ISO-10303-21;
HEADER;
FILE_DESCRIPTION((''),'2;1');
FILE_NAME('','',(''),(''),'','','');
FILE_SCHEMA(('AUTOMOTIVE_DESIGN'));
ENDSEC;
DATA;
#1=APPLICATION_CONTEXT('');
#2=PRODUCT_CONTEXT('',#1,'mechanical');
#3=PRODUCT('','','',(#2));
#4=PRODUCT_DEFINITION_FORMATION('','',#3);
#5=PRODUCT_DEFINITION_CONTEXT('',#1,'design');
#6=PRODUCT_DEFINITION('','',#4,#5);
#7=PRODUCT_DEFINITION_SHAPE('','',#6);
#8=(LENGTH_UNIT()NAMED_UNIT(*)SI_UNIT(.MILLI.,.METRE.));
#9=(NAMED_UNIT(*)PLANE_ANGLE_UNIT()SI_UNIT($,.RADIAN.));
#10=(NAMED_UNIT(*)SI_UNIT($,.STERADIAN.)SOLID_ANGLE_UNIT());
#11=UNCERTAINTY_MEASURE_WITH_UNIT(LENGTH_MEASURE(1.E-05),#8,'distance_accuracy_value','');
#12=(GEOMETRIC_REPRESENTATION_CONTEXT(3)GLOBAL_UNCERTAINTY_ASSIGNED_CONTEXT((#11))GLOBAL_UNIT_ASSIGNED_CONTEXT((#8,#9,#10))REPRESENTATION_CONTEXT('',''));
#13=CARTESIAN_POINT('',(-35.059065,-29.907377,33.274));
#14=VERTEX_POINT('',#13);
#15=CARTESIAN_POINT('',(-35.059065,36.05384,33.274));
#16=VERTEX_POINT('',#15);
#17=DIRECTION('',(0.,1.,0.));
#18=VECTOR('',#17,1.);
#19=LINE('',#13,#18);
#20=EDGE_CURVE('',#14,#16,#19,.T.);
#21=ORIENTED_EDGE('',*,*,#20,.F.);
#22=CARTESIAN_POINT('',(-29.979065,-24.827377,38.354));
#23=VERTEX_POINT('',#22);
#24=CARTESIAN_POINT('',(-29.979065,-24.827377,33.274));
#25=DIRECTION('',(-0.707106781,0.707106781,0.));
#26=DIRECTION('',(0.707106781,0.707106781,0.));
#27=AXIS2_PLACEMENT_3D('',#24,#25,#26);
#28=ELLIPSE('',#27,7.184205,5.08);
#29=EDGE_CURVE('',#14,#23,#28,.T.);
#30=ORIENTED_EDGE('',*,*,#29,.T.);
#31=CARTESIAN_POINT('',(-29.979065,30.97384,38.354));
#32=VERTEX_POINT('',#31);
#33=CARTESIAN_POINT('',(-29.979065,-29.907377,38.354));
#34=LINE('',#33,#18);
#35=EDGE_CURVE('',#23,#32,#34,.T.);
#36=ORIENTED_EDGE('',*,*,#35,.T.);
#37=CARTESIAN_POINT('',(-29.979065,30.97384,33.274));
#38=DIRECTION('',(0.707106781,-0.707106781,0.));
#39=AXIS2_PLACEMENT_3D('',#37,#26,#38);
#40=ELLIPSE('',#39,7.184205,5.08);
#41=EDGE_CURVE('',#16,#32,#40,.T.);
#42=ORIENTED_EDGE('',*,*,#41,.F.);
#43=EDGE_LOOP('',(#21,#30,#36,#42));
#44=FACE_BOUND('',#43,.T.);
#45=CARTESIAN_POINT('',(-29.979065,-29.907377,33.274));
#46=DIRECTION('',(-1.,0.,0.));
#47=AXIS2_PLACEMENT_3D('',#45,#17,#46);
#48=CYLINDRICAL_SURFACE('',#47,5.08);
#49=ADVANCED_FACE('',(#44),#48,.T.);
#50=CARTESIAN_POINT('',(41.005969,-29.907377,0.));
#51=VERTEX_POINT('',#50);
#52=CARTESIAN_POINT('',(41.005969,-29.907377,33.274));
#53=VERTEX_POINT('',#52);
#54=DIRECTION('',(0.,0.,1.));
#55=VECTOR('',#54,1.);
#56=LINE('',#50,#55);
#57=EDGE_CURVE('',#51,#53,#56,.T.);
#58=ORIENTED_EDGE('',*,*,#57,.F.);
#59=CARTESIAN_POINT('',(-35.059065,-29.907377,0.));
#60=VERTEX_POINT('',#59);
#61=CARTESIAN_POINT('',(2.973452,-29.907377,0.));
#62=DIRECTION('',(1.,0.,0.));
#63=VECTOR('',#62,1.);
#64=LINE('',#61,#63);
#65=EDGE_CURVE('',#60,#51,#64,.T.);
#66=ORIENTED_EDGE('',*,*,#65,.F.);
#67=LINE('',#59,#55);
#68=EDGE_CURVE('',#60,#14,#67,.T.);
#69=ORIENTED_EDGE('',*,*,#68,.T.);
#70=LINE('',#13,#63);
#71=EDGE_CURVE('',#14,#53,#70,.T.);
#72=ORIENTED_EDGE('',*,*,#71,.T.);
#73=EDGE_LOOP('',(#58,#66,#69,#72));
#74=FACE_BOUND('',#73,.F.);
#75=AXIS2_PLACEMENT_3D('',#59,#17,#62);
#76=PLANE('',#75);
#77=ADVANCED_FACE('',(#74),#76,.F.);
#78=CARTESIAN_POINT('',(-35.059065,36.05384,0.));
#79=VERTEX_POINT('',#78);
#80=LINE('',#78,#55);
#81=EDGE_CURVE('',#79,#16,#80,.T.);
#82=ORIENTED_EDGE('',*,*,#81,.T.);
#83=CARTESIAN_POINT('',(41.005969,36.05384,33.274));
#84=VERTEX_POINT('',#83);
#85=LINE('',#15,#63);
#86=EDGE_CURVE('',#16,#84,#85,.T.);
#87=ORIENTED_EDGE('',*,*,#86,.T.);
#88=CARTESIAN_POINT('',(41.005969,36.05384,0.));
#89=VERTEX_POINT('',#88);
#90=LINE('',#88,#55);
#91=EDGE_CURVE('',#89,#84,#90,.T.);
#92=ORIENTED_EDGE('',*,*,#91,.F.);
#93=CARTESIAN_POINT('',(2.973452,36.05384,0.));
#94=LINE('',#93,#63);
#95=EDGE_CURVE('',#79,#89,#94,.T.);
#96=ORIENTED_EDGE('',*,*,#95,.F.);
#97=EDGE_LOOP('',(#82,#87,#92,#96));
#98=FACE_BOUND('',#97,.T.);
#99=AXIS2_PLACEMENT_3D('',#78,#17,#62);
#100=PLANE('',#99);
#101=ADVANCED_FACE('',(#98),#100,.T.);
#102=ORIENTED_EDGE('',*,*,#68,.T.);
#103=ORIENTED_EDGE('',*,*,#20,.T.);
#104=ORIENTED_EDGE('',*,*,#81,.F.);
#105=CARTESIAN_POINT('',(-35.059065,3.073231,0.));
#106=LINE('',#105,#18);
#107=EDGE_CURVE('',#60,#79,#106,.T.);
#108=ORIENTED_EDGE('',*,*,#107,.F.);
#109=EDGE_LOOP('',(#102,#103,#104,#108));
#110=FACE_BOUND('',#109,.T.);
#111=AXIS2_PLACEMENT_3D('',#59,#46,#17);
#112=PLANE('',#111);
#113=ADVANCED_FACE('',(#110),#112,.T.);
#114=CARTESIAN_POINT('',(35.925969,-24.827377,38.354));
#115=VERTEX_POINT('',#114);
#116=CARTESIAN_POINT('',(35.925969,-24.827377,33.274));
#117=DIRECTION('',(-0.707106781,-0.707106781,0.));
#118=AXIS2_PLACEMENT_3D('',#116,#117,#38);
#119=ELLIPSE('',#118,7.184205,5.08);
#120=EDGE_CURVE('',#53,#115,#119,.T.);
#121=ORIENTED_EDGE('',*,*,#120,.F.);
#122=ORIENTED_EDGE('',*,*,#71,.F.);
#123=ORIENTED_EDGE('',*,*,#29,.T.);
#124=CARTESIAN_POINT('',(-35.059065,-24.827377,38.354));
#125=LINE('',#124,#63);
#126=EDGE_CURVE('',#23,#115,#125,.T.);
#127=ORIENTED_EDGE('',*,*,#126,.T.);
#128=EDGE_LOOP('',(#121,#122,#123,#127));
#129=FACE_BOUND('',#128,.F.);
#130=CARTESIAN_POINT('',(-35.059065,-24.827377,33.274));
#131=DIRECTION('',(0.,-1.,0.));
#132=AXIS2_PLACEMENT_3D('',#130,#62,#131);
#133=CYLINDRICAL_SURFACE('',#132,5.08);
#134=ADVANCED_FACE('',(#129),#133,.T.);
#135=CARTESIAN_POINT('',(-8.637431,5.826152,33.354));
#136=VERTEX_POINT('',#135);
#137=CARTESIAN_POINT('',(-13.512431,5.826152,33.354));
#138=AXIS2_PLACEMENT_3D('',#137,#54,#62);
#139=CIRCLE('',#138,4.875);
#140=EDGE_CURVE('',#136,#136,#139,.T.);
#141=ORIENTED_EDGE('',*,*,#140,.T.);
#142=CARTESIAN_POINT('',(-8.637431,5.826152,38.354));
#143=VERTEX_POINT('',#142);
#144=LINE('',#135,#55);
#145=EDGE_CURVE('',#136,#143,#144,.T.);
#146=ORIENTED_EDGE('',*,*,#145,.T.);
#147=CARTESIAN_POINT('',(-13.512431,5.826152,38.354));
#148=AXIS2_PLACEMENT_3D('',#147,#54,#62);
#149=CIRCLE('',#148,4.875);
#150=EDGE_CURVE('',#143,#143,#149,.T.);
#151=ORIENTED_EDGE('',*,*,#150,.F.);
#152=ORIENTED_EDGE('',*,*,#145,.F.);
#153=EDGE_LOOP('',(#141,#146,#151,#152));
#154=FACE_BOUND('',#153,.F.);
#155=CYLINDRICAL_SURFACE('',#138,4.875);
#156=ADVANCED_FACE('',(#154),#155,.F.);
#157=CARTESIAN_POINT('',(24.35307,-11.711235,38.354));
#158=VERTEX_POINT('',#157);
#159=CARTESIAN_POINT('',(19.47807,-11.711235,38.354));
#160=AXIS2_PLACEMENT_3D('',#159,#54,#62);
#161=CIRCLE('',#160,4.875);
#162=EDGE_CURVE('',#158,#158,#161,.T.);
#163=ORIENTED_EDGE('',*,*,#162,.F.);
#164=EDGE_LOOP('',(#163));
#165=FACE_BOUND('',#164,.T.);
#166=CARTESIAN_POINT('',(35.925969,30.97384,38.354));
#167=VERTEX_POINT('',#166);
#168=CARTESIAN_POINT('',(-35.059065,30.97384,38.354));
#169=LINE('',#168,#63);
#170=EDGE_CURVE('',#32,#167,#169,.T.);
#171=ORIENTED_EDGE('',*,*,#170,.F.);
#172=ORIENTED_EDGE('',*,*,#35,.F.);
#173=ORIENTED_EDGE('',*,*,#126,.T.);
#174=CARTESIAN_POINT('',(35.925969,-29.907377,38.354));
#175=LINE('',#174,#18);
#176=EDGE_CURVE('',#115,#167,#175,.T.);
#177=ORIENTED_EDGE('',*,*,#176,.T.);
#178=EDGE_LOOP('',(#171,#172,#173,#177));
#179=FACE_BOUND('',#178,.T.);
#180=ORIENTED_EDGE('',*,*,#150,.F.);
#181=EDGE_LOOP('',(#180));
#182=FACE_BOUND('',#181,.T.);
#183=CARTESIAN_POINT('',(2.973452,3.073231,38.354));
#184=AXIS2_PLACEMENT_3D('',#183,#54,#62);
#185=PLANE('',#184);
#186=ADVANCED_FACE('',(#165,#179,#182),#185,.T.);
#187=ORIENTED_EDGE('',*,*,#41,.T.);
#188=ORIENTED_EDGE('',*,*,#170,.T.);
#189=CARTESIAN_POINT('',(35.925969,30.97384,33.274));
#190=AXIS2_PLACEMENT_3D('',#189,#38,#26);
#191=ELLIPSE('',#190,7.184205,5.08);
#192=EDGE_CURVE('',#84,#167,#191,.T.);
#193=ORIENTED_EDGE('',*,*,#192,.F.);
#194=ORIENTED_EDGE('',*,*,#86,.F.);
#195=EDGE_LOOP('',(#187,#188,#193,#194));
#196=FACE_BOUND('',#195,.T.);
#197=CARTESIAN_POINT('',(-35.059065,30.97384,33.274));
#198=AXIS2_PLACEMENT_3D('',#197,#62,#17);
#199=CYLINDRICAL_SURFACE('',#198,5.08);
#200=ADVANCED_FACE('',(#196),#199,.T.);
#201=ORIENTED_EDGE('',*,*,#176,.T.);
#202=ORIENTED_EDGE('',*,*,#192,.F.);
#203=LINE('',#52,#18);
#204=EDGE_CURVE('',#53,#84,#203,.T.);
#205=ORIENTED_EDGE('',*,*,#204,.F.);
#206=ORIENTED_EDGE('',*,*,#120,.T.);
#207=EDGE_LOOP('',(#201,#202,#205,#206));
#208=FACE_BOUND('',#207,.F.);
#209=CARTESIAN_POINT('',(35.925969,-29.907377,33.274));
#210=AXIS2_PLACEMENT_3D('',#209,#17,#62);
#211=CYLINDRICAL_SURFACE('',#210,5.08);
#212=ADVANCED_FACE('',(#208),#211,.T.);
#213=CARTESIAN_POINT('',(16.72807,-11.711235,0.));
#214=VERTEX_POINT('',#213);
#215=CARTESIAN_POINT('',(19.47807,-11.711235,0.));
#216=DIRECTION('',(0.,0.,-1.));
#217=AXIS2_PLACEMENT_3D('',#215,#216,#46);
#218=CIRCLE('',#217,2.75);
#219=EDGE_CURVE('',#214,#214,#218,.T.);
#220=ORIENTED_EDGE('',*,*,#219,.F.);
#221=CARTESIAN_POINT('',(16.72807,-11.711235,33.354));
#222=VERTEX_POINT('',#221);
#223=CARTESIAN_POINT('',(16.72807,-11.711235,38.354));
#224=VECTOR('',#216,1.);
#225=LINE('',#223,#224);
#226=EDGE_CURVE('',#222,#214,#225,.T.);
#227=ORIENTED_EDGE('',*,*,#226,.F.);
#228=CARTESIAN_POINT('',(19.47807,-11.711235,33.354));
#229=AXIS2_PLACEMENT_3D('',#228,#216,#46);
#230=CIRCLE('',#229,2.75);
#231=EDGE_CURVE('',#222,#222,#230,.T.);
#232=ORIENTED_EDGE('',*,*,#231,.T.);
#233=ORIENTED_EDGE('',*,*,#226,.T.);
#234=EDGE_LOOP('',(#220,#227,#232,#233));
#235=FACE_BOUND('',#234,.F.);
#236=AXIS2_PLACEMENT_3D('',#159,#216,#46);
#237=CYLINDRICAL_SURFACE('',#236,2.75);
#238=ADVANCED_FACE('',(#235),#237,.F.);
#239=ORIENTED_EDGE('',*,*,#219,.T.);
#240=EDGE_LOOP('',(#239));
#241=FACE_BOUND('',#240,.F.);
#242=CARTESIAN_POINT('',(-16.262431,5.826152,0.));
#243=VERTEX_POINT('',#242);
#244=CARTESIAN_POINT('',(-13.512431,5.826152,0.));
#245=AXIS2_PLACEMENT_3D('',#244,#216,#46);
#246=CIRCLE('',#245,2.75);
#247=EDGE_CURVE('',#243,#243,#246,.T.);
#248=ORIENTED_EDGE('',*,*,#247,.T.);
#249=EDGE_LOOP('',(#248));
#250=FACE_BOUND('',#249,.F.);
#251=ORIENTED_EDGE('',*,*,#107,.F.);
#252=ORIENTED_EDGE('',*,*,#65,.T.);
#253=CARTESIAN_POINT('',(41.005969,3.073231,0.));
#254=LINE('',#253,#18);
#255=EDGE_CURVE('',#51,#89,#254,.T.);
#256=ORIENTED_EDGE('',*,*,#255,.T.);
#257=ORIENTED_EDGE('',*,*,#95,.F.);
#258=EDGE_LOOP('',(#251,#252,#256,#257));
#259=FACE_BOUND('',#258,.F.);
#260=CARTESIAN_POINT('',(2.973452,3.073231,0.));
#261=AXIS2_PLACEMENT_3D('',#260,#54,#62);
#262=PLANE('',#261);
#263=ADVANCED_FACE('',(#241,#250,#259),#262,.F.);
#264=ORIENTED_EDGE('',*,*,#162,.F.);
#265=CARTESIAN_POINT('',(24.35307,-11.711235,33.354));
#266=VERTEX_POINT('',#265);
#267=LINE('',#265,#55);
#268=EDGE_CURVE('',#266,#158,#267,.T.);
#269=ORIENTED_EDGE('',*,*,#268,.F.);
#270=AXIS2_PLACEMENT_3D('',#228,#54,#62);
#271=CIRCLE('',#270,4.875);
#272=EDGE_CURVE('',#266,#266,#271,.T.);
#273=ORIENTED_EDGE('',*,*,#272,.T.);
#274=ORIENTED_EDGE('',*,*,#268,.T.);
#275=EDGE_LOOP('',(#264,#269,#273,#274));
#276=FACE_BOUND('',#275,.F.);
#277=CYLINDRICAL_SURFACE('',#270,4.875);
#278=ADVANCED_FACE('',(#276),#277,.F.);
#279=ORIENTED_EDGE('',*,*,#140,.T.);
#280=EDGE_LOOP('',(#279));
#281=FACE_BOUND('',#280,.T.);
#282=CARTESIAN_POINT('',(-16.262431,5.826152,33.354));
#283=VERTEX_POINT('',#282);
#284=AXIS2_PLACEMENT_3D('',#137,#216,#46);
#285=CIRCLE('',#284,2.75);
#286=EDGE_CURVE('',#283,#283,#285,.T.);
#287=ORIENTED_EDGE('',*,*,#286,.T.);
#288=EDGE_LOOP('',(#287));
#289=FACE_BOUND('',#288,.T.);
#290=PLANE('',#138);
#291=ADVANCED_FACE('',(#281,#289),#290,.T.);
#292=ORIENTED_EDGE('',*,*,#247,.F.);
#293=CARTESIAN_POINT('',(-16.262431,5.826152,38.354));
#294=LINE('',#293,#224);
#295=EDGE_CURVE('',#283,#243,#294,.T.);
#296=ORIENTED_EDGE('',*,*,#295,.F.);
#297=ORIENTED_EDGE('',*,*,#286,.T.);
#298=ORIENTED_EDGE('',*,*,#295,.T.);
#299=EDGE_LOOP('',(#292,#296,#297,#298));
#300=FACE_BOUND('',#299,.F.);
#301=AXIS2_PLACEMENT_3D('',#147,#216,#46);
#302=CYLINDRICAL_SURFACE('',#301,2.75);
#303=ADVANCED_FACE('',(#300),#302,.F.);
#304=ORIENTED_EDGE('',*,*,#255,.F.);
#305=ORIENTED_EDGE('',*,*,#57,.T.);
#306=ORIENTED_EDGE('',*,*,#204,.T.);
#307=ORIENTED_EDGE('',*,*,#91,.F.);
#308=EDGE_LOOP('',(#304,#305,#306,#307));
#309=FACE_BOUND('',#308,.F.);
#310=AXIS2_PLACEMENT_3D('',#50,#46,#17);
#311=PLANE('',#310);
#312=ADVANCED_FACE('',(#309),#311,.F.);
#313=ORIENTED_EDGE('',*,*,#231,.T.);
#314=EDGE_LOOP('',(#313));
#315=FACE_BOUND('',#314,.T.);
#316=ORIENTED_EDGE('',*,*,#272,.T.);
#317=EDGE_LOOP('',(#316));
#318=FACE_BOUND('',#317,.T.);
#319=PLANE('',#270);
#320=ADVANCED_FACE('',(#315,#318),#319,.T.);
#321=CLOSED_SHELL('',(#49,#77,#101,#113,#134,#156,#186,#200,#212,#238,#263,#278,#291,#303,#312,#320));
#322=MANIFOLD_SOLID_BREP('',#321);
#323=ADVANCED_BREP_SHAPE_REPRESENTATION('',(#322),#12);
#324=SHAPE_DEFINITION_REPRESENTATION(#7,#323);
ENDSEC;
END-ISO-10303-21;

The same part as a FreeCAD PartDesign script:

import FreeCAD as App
import Part
import Sketcher
Q = App.Units.Quantity


def edges_at(feature, points):
    """Names of the edges that pass closest to the given points."""
    edges = feature.Shape.Edges
    near = lambda p: min(range(len(edges)), key=lambda i: edges[i].distToShape(Part.Vertex(*p))[0])
    return sorted({f"Edge{near(p) + 1}" for p in points})

doc = App.newDocument("Part")
body = doc.addObject("PartDesign::Body", "Body")

# Sketch on XY plane
sketch1 = body.newObject("Sketcher::SketchObject", "Sketch")
sketch1.AttachmentSupport = (doc.getObject("XY_Plane"), [""])
sketch1.MapMode = "FlatFace"
sketch1.addGeometry([
    Part.LineSegment(App.Vector(-35, 36, 0), App.Vector(-35, -30, 0)),
    Part.LineSegment(App.Vector(-35, -30, 0), App.Vector(41, -30, 0)),
    Part.LineSegment(App.Vector(41, -30, 0), App.Vector(41, 36, 0)),
    Part.LineSegment(App.Vector(41, 36, 0), App.Vector(-35, 36, 0)),
], False)
sketch1.addConstraint([
    Sketcher.Constraint("Coincident", 0, 2, 1, 1),
    Sketcher.Constraint("Coincident", 1, 2, 2, 1),
    Sketcher.Constraint("Coincident", 2, 2, 3, 1),
    Sketcher.Constraint("Coincident", 3, 2, 0, 1),
    Sketcher.Constraint("Vertical", 0),
    Sketcher.Constraint("Horizontal", 1),
    Sketcher.Constraint("Vertical", 2),
    Sketcher.Constraint("Horizontal", 3),
    Sketcher.Constraint("DistanceX", 1, 1, 1, 2, 76.065034),
    Sketcher.Constraint("DistanceY", 0, 2, 0, 1, 65.961218),
    Sketcher.Constraint("DistanceX", -1, 1, 1, 2, 41.005969),
    Sketcher.Constraint("DistanceY", -1, 1, 2, 2, 36.05384),
])
pad1 = body.newObject("PartDesign::Pad", "Pad")
pad1.Profile = sketch1
pad1.Length = Q("1.51 in")
doc.recompute()

fillet = body.newObject("PartDesign::Fillet", "Fillet")
fillet.Base = (pad1, edges_at(pad1, [
    (2.973, -29.907, 38.354),
    (41.006, 3.073, 38.354),
    (2.973, 36.054, 38.354),
    (-35.059, 3.073, 38.354),
]))
fillet.Radius = Q("0.2 in")

# Sketch on XY plane
sketch2 = body.newObject("Sketcher::SketchObject", "Sketch001")
sketch2.AttachmentSupport = (doc.getObject("XY_Plane"), [""])
sketch2.MapMode = "FlatFace"
sketch2.AttachmentOffset = App.Placement(App.Vector(0, 0, 1.51 * 25.4), App.Rotation())
sketch2.addGeometry([
    Part.Circle(App.Vector(-13.5, 5.8, 0), App.Vector(0, 0, 1), 2.8),
    Part.Circle(App.Vector(19.5, -11.7, 0), App.Vector(0, 0, 1), 2.8),
], False)
sketch2.addConstraint([
    Sketcher.Constraint("Equal", 0, 1),
    Sketcher.Constraint("Diameter", 0, 5.5),
    Sketcher.Constraint("DistanceX", 0, 3, 1, 3, 32.9905),
    Sketcher.Constraint("DistanceX", 0, 3, -1, 1, 13.512431),
    Sketcher.Constraint("DistanceY", -1, 1, 0, 3, 5.826152),
    Sketcher.Constraint("DistanceY", 1, 3, -1, 1, 11.711235),
])
doc.recompute()
hole = body.newObject("PartDesign::Hole", "Hole")
hole.Profile = sketch2
hole.ThreadType = "None"
hole.Diameter = 5.5
hole.DepthType = "ThroughAll"
hole.HoleCutType = "Counterbore"
hole.HoleCutDiameter = 9.75
hole.HoleCutDepth = 5

doc.recompute()
